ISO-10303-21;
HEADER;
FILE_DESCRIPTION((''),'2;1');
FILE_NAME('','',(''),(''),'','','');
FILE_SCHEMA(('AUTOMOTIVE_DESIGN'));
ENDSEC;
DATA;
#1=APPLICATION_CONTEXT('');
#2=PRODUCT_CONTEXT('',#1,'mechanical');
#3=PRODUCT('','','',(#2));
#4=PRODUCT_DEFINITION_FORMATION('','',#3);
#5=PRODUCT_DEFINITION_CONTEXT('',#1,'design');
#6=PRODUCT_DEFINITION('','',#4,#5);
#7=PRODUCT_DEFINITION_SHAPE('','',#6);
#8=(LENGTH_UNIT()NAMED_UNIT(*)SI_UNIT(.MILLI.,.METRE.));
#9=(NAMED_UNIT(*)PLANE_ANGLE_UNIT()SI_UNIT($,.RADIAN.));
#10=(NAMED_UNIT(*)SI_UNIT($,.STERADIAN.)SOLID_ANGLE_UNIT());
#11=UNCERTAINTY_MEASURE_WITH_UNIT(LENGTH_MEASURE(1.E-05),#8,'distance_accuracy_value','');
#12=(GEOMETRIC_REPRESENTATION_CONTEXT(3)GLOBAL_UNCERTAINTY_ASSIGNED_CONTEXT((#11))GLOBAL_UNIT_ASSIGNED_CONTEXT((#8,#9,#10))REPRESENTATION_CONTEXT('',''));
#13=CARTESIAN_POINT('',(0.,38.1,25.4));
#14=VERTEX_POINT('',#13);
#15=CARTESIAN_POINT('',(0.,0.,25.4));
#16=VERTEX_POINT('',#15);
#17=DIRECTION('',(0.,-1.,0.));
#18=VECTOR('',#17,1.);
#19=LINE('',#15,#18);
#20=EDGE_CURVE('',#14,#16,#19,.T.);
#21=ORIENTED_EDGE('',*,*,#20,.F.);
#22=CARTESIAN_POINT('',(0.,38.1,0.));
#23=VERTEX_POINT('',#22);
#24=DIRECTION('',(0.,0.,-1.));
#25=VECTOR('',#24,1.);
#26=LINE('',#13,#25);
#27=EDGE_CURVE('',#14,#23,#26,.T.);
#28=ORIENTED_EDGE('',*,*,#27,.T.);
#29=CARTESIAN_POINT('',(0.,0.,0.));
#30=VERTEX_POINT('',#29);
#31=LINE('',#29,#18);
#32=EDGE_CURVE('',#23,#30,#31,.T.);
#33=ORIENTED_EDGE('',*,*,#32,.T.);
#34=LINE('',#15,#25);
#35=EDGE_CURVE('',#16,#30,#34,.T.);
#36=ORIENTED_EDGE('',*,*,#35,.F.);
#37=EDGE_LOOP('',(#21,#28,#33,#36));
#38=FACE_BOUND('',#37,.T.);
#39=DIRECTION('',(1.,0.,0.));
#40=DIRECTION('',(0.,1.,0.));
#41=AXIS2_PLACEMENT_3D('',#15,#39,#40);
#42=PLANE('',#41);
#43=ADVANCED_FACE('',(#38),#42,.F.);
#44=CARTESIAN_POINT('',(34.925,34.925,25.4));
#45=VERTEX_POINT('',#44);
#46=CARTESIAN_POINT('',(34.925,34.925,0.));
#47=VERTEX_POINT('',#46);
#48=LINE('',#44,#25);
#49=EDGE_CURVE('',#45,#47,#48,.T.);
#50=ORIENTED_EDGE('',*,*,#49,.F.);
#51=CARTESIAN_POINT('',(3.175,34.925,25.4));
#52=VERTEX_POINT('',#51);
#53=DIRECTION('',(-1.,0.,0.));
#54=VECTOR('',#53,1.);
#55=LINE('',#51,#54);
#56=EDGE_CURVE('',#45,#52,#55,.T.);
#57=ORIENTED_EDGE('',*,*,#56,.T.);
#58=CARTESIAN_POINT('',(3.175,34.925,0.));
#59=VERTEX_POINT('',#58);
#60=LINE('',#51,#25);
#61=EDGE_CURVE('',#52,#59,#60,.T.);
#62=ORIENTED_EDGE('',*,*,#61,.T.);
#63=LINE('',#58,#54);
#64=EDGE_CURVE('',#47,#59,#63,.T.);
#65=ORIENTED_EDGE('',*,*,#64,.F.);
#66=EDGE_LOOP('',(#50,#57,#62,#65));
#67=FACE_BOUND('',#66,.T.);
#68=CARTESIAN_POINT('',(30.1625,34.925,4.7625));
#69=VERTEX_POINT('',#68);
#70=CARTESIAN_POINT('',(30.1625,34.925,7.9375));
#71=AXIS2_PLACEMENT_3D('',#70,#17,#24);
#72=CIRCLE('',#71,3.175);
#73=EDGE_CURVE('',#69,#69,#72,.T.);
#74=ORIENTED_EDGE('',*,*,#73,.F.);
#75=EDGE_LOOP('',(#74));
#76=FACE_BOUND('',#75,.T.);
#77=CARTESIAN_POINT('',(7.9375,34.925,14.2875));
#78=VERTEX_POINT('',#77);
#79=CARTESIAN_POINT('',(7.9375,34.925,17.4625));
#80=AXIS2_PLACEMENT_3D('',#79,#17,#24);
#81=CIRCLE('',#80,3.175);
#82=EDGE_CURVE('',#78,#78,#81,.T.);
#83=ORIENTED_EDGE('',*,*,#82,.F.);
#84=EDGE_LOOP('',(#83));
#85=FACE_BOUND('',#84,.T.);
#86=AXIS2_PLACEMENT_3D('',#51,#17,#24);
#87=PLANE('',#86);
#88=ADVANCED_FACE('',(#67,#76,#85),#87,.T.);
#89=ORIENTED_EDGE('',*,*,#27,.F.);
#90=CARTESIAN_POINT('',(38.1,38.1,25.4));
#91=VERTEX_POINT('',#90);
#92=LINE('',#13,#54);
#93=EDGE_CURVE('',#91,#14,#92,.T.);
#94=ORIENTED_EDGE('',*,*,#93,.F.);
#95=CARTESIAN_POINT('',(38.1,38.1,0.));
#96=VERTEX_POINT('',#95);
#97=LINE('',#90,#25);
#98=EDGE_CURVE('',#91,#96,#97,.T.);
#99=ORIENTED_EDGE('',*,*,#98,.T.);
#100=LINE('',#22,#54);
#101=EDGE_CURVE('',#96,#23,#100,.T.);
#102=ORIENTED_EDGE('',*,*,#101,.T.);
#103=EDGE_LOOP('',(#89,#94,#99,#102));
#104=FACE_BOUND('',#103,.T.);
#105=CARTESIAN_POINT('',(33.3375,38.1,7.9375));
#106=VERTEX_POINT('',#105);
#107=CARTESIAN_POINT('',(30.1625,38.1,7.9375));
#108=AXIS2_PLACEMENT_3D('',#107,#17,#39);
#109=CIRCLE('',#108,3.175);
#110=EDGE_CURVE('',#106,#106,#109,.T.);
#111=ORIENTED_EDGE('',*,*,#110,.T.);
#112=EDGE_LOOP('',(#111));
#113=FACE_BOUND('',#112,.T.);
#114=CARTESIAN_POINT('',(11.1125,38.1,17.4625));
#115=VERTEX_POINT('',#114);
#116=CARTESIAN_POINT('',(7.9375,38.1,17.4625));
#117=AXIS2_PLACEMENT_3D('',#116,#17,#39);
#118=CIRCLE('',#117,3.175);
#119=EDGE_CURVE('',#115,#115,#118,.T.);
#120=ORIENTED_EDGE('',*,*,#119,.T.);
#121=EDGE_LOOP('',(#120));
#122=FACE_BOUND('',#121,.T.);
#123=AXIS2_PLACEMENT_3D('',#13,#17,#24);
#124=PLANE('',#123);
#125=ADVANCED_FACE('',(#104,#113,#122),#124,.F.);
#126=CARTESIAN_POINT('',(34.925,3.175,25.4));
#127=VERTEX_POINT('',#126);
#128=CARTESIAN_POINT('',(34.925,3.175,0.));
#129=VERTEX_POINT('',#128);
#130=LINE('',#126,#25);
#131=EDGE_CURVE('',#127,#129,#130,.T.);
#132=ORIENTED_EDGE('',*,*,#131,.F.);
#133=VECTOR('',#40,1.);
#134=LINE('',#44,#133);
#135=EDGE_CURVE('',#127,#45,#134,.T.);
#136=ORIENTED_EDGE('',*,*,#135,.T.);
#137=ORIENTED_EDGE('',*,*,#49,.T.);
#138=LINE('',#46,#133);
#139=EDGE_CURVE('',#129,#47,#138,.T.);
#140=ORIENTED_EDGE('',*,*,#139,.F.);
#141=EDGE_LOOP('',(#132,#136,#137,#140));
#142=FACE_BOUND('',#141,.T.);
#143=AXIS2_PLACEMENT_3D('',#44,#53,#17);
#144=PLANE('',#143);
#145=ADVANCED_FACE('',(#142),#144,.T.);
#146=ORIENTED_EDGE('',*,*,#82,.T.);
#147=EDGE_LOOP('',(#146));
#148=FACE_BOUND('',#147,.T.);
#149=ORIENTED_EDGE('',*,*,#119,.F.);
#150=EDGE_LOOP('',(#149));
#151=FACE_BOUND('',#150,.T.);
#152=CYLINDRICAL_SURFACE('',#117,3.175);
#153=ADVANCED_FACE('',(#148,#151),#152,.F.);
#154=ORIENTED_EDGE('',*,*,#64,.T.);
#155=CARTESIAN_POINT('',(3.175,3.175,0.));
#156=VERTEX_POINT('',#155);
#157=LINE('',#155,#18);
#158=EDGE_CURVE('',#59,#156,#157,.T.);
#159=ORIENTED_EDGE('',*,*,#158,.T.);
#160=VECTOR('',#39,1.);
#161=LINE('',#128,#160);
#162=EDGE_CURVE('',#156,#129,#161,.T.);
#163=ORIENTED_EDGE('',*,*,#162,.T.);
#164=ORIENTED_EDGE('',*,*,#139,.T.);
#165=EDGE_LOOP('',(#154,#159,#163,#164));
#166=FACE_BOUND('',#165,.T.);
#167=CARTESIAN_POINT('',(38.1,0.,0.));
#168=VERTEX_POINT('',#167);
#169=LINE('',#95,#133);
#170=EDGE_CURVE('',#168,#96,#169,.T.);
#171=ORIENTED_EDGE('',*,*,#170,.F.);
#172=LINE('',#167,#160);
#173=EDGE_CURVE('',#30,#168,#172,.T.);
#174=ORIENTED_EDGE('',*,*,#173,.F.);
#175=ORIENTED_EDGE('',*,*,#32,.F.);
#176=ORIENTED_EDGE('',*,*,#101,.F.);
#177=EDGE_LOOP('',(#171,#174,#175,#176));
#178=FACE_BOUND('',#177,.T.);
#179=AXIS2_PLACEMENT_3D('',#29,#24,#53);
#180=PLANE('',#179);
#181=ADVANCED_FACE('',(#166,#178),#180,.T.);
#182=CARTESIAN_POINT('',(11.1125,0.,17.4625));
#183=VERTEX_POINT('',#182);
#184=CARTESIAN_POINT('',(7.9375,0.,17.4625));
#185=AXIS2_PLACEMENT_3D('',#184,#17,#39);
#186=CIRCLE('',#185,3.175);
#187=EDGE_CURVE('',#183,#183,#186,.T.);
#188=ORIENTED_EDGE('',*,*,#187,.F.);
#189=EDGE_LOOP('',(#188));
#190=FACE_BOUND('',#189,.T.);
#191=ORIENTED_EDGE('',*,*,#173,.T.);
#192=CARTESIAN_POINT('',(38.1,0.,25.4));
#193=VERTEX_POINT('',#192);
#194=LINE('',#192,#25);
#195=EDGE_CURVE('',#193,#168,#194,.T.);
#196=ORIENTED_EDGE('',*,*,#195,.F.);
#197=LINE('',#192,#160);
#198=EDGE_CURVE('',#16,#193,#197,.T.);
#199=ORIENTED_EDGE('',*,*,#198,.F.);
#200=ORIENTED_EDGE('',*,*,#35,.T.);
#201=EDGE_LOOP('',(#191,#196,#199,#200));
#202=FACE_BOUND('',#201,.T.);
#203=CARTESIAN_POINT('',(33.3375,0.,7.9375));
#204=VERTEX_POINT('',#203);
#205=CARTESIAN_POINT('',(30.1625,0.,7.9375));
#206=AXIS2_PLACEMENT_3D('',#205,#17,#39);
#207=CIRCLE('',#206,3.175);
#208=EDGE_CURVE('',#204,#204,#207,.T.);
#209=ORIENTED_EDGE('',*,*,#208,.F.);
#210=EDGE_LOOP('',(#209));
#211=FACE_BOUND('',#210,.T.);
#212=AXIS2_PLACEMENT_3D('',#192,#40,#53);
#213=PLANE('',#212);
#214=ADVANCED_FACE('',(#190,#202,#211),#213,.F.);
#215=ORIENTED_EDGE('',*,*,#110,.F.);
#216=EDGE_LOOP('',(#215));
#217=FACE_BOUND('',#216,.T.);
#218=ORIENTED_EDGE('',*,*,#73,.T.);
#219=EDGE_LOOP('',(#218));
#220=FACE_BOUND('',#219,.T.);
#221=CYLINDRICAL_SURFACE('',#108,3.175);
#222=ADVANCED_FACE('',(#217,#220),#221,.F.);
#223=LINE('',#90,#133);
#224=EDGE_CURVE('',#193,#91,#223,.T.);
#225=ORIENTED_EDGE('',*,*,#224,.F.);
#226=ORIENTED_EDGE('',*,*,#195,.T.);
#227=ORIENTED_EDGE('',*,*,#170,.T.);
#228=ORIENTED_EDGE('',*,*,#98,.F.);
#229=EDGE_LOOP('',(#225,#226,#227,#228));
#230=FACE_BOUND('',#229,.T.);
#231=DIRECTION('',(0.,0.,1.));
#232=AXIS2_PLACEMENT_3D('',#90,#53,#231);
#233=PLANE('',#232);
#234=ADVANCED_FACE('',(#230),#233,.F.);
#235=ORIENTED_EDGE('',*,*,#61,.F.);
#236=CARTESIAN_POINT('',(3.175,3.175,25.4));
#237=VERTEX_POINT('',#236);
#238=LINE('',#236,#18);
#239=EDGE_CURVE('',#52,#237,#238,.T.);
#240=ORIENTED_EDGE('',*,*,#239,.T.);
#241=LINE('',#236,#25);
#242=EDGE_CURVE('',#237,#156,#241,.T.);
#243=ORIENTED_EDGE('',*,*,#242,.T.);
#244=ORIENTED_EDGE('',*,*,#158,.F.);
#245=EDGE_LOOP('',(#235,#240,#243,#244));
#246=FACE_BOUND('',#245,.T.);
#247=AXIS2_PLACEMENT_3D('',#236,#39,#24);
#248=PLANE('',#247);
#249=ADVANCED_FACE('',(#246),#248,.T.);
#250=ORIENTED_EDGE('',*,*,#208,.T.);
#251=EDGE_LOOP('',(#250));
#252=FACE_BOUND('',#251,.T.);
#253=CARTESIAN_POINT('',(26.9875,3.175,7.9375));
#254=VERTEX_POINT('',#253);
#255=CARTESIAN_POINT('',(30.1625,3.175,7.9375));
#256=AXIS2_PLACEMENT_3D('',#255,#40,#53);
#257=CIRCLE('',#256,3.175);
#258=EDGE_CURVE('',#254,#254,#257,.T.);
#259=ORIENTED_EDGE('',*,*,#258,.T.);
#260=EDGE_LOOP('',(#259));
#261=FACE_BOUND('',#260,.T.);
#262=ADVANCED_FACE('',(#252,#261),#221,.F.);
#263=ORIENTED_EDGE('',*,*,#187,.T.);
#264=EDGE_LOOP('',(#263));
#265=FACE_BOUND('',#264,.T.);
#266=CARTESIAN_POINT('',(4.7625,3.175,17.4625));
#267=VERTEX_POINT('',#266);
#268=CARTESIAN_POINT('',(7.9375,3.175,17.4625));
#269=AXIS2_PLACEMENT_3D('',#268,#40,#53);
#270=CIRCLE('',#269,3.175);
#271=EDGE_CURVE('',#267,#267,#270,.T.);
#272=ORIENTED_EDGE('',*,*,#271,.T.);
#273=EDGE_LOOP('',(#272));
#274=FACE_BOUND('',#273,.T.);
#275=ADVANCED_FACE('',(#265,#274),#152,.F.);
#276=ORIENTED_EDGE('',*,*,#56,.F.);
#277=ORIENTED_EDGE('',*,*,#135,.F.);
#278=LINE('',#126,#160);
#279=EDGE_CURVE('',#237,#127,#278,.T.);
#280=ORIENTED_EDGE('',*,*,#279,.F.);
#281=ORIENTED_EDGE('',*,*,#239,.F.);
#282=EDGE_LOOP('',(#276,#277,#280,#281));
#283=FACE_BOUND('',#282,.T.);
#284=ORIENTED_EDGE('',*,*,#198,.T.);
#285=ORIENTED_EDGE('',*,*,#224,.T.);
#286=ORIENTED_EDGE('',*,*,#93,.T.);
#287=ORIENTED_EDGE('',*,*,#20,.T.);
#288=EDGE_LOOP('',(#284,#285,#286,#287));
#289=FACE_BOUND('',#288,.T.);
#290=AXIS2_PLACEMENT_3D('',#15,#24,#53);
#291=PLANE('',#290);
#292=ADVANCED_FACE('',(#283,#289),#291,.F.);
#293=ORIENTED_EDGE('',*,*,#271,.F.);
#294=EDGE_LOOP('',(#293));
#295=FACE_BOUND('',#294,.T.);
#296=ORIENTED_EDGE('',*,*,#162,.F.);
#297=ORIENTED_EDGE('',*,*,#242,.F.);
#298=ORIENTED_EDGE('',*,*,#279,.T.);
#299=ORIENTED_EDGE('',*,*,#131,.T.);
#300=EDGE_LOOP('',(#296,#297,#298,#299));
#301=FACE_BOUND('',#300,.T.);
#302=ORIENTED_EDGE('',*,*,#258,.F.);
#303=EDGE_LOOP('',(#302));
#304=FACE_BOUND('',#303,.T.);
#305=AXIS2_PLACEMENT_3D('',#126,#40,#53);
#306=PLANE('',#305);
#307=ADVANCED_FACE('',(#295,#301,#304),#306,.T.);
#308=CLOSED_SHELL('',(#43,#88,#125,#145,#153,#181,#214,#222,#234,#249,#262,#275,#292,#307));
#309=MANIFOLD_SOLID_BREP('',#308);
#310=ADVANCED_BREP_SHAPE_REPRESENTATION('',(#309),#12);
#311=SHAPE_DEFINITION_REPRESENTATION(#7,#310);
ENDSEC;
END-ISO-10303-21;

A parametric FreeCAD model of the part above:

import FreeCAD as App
import Part
import Sketcher

V = App.Vector
Q = App.Units.Quantity


def add_polygon(sketch, points):
    """Adds a closed chain of lines whose ends are joined by coincident constraints."""
    first, n = sketch.GeometryCount, len(points)
    for a, b in zip(points, points[1:] + points[:1]):
        sketch.addGeometry(Part.LineSegment(App.Vector(*a, 0), App.Vector(*b, 0)), False)
    for i in range(n):
        sketch.addConstraint(Sketcher.Constraint("Coincident", first + i, 2, first + (i + 1) % n, 1))

doc = App.newDocument("Part")
body = doc.addObject("PartDesign::Body", "Body")

# Sketch on XY plane
sketch1 = body.newObject("Sketcher::SketchObject", "Sketch")
sketch1.AttachmentSupport = (doc.getObject("XY_Plane"), [""])
sketch1.MapMode = "FlatFace"
add_polygon(sketch1, [(0, 38), (0, 0), (38, 0), (38, 38)])  # lines 0-3
add_polygon(sketch1, [(35, 3), (3, 3), (3, 35), (35, 35)])  # lines 4-7
sketch1.addConstraint([
    Sketcher.Constraint("Vertical", 0),
    Sketcher.Constraint("Horizontal", 1),
    Sketcher.Constraint("Vertical", 2),
    Sketcher.Constraint("Horizontal", 3),
    Sketcher.Constraint("Horizontal", 4),
    Sketcher.Constraint("Vertical", 5),
    Sketcher.Constraint("Horizontal", 6),
    Sketcher.Constraint("Vertical", 7),
    Sketcher.Constraint("Coincident", 0, 2, -1, 1),
    Sketcher.Constraint("Equal", 3, 0),
    Sketcher.Constraint("Equal", 6, 5),
    Sketcher.Constraint("DistanceX", 1, 1, 1, 2, Q("1.5 in")),
    Sketcher.Constraint("DistanceX", 4, 2, 4, 1, Q("1.25 in")),
    Sketcher.Constraint("DistanceX", -1, 1, 4, 2, Q("0.125 in")),
    Sketcher.Constraint("DistanceY", -1, 1, 4, 2, Q("0.125 in")),
])
pad1 = body.newObject("PartDesign::Pad", "Pad")
pad1.Profile = sketch1
pad1.Length = Q("1 in")

# Sketch on XZ plane
sketch2 = body.newObject("Sketcher::SketchObject", "Sketch001")
sketch2.AttachmentSupport = (doc.getObject("XZ_Plane"), [""])
sketch2.MapMode = "FlatFace"
sketch2.addGeometry([
    Part.Circle(V(7.9, 17.5, 0), V(0, 0, 1), 3.2),
    Part.Circle(V(30.2, 7.9, 0), V(0, 0, 1), 3.2),
], False)
sketch2.addConstraint([
    Sketcher.Constraint("Equal", 0, 1),
    Sketcher.Constraint("Diameter", 0, Q("0.25 in")),
    Sketcher.Constraint("DistanceX", -1, 1, 0, 3, Q("0.3125 in")),
    Sketcher.Constraint("DistanceY", -1, 1, 0, 3, Q("0.6875 in")),
    Sketcher.Constraint("DistanceX", -1, 1, 1, 3, Q("1.1875 in")),
    Sketcher.Constraint("DistanceY", -1, 1, 1, 3, Q("0.3125 in")),
])
pocket1 = body.newObject("PartDesign::Pocket", "Pocket")
pocket1.Profile = sketch2
pocket1.Type = "ThroughAll"

doc.recompute()
